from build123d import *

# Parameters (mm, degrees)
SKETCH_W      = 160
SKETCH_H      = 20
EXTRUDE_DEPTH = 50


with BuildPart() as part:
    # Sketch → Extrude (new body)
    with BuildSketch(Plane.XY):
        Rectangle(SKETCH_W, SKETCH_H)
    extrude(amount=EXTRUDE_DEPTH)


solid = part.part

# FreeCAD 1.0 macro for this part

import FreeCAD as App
import Part
import Sketcher
from FreeCAD import Vector
Q = App.Units.Quantity

doc = App.newDocument("Part")
params = doc.addObject("Spreadsheet::Sheet", "Params")
for row, (alias, value) in enumerate([
    ("sketch1_width", "160 mm"),
    ("sketch1_height", "20 mm"),
    ("pad1_length", "50 mm"),
], start=1):
    params.set(f"A{row}", alias)
    params.set(f"B{row}", "=" + value)
    params.setAlias(f"B{row}", alias)

body = doc.addObject("PartDesign::Body", "Body")

# Sketch on XY plane
sketch1 = body.newObject("Sketcher::SketchObject", "Sketch")
sketch1.AttachmentSupport = (doc.getObject("XY_Plane"), [""])
sketch1.MapMode = "FlatFace"
sketch1.addGeometry([
    Part.LineSegment(Vector(-80, 10, 0), Vector(-80, -10, 0)),
    Part.LineSegment(Vector(-80, -10, 0), Vector(80, -10, 0)),
    Part.LineSegment(Vector(80, -10, 0), Vector(80, 10, 0)),
    Part.LineSegment(Vector(80, 10, 0), Vector(-80, 10, 0)),
], False)
sketch1.addConstraint([
    Sketcher.Constraint("Coincident", 0, 2, 1, 1),
    Sketcher.Constraint("Coincident", 1, 2, 2, 1),
    Sketcher.Constraint("Coincident", 2, 2, 3, 1),
    Sketcher.Constraint("Coincident", 3, 2, 0, 1),
    Sketcher.Constraint("Vertical", 0),
    Sketcher.Constraint("Horizontal", 1),
    Sketcher.Constraint("Vertical", 2),
    Sketcher.Constraint("Horizontal", 3),
    Sketcher.Constraint("Symmetric", 0, 2, 2, 2, -1, 1),
    Sketcher.Constraint("DistanceX", 1, 1, 1, 2, Q("160 mm")),
    Sketcher.Constraint("DistanceY", 0, 2, 0, 1, Q("20 mm")),
])
sketch1.setExpression("Constraints[9]", "Params.sketch1_width")
sketch1.setExpression("Constraints[10]", "Params.sketch1_height")
pad1 = body.newObject("PartDesign::Pad", "Pad")
pad1.Profile = sketch1
pad1.setExpression("Length", "Params.pad1_length")

doc.recompute()
